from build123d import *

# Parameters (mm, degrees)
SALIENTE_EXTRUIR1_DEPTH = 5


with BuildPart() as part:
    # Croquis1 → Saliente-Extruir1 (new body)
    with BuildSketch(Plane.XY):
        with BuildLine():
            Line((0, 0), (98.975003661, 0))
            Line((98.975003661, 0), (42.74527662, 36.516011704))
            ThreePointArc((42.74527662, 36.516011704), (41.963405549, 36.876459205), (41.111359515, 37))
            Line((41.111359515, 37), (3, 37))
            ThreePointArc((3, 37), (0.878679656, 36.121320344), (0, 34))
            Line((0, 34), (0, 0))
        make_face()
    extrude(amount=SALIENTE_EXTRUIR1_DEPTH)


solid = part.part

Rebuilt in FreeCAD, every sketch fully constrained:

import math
import FreeCAD as App
import Part
import Sketcher
Q = App.Units.Quantity

doc = App.newDocument("Part")
body = doc.addObject("PartDesign::Body", "Body")

sketch1 = doc.addObject("Sketcher::SketchObject", "Sketch")
body.addObject(sketch1)
sketch1.AttachmentSupport = (doc.XY_Plane, [""])
sketch1.MapMode = "FlatFace"
sketch1.addGeometry([
    Part.LineSegment(App.Vector(0, 0, 0), App.Vector(99, 0, 0)),
    Part.LineSegment(App.Vector(99, 0, 0), App.Vector(42.7, 36.5, 0)),
    Part.ArcOfCircle(Part.Circle(App.Vector(41.1, 34, 0), App.Vector(0, 0, 1), 3), math.radians(57), math.radians(90)),
    Part.LineSegment(App.Vector(41.1, 37, 0), App.Vector(3, 37, 0)),
    Part.ArcOfCircle(Part.Circle(App.Vector(3, 34, 0), App.Vector(0, 0, 1), 3), math.radians(90), math.radians(180)),
    Part.LineSegment(App.Vector(0, 34, 0), App.Vector(0, 0, 0)),
], False)
sketch1.addConstraint([
    Sketcher.Constraint("Coincident", 0, 2, 1, 1),
    Sketcher.Constraint("Tangent", 1, 2, 2, 1),
    Sketcher.Constraint("Tangent", 2, 2, 3, 1),
    Sketcher.Constraint("Tangent", 3, 2, 4, 1),
    Sketcher.Constraint("Tangent", 4, 2, 5, 1),
    Sketcher.Constraint("Coincident", 5, 2, 0, 1),
    Sketcher.Constraint("Horizontal", 0),
    Sketcher.Constraint("Horizontal", 3),
    Sketcher.Constraint("Vertical", 5),
    Sketcher.Constraint("Coincident", 5, 2, -1, 1),
    Sketcher.Constraint("Equal", 2, 4),
    Sketcher.Constraint("Radius", 2, 3.0),
    Sketcher.Constraint("DistanceY", 5, 2, 5, 1, 34.0),
    Sketcher.Constraint("Angle", 1, Q("147 deg")),
    Sketcher.Constraint("DistanceX", 3, 2, 3, 1, 38.11136),
])
pad1 = doc.addObject("PartDesign::Pad", "Pad")
body.addObject(pad1)
pad1.Profile = sketch1
pad1.Length = 5

doc.recompute()
